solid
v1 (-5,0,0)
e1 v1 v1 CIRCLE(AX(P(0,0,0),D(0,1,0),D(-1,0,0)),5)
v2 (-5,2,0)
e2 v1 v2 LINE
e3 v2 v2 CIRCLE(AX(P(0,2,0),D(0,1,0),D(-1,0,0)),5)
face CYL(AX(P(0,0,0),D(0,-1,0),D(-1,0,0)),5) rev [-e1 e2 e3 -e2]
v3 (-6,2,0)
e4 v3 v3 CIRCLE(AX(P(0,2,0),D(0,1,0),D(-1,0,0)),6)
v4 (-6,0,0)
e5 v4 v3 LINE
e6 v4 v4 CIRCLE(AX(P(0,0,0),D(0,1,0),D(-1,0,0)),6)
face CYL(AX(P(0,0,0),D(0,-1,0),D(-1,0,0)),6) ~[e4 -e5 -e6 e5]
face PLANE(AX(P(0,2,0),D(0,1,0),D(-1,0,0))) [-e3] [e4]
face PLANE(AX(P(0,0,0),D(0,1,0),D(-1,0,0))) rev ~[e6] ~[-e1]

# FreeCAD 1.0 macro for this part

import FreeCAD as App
import Part
import Sketcher
from FreeCAD import Vector
Q = App.Units.Quantity

doc = App.newDocument("Part")
params = doc.addObject("Spreadsheet::Sheet", "Params")
for row, (alias, value) in enumerate([
    ("sketch1_diameter", "12 mm"),
    ("sketch1_diameter2", "10 mm"),
    ("pad1_length", "2 mm"),
], start=1):
    params.set(f"A{row}", alias)
    params.set(f"B{row}", "=" + value)
    params.setAlias(f"B{row}", alias)

body = doc.addObject("PartDesign::Body", "Body")

sketch1 = doc.addObject("Sketcher::SketchObject", "Sketch")
body.addObject(sketch1)
sketch1.AttachmentSupport = (doc.XZ_Plane, [""])
sketch1.MapMode = "FlatFace"
sketch1.addGeometry([
    Part.Circle(Vector(0, 0, 0), Vector(0, 0, 1), 6),
    Part.Circle(Vector(0, 0, 0), Vector(0, 0, 1), 5),
], False)
sketch1.addConstraint([
    Sketcher.Constraint("Coincident", 0, 3, -1, 1),
    Sketcher.Constraint("Coincident", 1, 3, -1, 1),
    Sketcher.Constraint("Diameter", 0, Q("12 mm")),
    Sketcher.Constraint("Diameter", 1, Q("10 mm")),
])
sketch1.setExpression("Constraints[2]", "Params.sketch1_diameter")
sketch1.setExpression("Constraints[3]", "Params.sketch1_diameter2")
pad1 = doc.addObject("PartDesign::Pad", "Pad")
body.addObject(pad1)
pad1.Profile = sketch1
pad1.setExpression("Length", "Params.pad1_length")
pad1.Reversed = True

doc.recompute()
